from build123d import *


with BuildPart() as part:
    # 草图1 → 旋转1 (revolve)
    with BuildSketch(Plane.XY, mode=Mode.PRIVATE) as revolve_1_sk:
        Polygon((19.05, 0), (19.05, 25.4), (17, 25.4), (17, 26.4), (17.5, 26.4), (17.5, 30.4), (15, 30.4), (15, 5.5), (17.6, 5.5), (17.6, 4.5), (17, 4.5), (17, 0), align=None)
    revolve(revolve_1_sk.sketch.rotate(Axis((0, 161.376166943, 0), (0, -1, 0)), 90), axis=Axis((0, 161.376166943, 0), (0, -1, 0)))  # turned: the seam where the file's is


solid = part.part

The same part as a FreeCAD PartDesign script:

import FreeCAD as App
import Part
import Sketcher
from FreeCAD import Vector

doc = App.newDocument("Part")
body = doc.addObject("PartDesign::Body", "Body")

# Sketch on XY plane
sketch1 = doc.addObject("Sketcher::SketchObject", "Sketch")
body.addObject(sketch1)
sketch1.AttachmentSupport = (doc.XY_Plane, [""])
sketch1.MapMode = "FlatFace"
sketch1.addGeometry([
    Part.LineSegment(Vector(19.05, 0, 0), Vector(19.05, 25.4, 0)),  # 0
    Part.LineSegment(Vector(19.05, 25.4, 0), Vector(17, 25.4, 0)),  # 1
    Part.LineSegment(Vector(17, 25.4, 0), Vector(17, 26.4, 0)),  # 2
    Part.LineSegment(Vector(17, 26.4, 0), Vector(17.5, 26.4, 0)),  # 3
    Part.LineSegment(Vector(17.5, 26.4, 0), Vector(17.5, 30.4, 0)),  # 4
    Part.LineSegment(Vector(17.5, 30.4, 0), Vector(15, 30.4, 0)),  # 5
    Part.LineSegment(Vector(15, 30.4, 0), Vector(15, 5.5, 0)),  # 6
    Part.LineSegment(Vector(15, 5.5, 0), Vector(17.6, 5.5, 0)),  # 7
    Part.LineSegment(Vector(17.6, 5.5, 0), Vector(17.6, 4.5, 0)),  # 8
    Part.LineSegment(Vector(17.6, 4.5, 0), Vector(17, 4.5, 0)),  # 9
    Part.LineSegment(Vector(17, 4.5, 0), Vector(17, 0, 0)),  # 10
    Part.LineSegment(Vector(17, 0, 0), Vector(19.05, 0, 0)),  # 11
], False)
sketch1.addConstraint([
    Sketcher.Constraint("Coincident", 0, 2, 1, 1),
    Sketcher.Constraint("Coincident", 1, 2, 2, 1),
    Sketcher.Constraint("Coincident", 2, 2, 3, 1),
    Sketcher.Constraint("Coincident", 3, 2, 4, 1),
    Sketcher.Constraint("Coincident", 4, 2, 5, 1),
    Sketcher.Constraint("Coincident", 5, 2, 6, 1),
    Sketcher.Constraint("Coincident", 6, 2, 7, 1),
    Sketcher.Constraint("Coincident", 7, 2, 8, 1),
    Sketcher.Constraint("Coincident", 8, 2, 9, 1),
    Sketcher.Constraint("Coincident", 9, 2, 10, 1),
    Sketcher.Constraint("Coincident", 10, 2, 11, 1),
    Sketcher.Constraint("Coincident", 11, 2, 0, 1),
    Sketcher.Constraint("Vertical", 0),
    Sketcher.Constraint("Horizontal", 1),
    Sketcher.Constraint("Vertical", 2),
    Sketcher.Constraint("Horizontal", 3),
    Sketcher.Constraint("Vertical", 4),
    Sketcher.Constraint("Horizontal", 5),
    Sketcher.Constraint("Vertical", 6),
    Sketcher.Constraint("Horizontal", 7),
    Sketcher.Constraint("Vertical", 8),
    Sketcher.Constraint("Horizontal", 9),
    Sketcher.Constraint("Vertical", 10),
    Sketcher.Constraint("Horizontal", 11),
    Sketcher.Constraint("PointOnObject", 10, 2, -1),
    Sketcher.Constraint("Vertical", 2, 2, 9, 2),
    Sketcher.Constraint("Equal", 2, 8),
    Sketcher.Constraint("DistanceY", 2, 1, 2, 2, 1.0),
    Sketcher.Constraint("DistanceY", 4, 1, 4, 2, 4.0),
    Sketcher.Constraint("DistanceX", 3, 1, 3, 2, 0.5),
    Sketcher.Constraint("DistanceX", 5, 2, 5, 1, 2.5),
    Sketcher.Constraint("DistanceX", 7, 1, 7, 2, 2.6),
    Sketcher.Constraint("DistanceY", 0, 1, 0, 2, 25.4),
    Sketcher.Constraint("DistanceY", 6, 2, 6, 1, 24.9),
    Sketcher.Constraint("DistanceX", -1, 1, 1, 2, 17.0),
    Sketcher.Constraint("DistanceX", 1, 2, 1, 1, 2.05),
])
revolution = doc.addObject("PartDesign::Revolution", "Revolution")
body.addObject(revolution)
revolution.Profile = sketch1
revolution.ReferenceAxis = (sketch1, ["V_Axis"])
revolution.Angle = 360

doc.recompute()
